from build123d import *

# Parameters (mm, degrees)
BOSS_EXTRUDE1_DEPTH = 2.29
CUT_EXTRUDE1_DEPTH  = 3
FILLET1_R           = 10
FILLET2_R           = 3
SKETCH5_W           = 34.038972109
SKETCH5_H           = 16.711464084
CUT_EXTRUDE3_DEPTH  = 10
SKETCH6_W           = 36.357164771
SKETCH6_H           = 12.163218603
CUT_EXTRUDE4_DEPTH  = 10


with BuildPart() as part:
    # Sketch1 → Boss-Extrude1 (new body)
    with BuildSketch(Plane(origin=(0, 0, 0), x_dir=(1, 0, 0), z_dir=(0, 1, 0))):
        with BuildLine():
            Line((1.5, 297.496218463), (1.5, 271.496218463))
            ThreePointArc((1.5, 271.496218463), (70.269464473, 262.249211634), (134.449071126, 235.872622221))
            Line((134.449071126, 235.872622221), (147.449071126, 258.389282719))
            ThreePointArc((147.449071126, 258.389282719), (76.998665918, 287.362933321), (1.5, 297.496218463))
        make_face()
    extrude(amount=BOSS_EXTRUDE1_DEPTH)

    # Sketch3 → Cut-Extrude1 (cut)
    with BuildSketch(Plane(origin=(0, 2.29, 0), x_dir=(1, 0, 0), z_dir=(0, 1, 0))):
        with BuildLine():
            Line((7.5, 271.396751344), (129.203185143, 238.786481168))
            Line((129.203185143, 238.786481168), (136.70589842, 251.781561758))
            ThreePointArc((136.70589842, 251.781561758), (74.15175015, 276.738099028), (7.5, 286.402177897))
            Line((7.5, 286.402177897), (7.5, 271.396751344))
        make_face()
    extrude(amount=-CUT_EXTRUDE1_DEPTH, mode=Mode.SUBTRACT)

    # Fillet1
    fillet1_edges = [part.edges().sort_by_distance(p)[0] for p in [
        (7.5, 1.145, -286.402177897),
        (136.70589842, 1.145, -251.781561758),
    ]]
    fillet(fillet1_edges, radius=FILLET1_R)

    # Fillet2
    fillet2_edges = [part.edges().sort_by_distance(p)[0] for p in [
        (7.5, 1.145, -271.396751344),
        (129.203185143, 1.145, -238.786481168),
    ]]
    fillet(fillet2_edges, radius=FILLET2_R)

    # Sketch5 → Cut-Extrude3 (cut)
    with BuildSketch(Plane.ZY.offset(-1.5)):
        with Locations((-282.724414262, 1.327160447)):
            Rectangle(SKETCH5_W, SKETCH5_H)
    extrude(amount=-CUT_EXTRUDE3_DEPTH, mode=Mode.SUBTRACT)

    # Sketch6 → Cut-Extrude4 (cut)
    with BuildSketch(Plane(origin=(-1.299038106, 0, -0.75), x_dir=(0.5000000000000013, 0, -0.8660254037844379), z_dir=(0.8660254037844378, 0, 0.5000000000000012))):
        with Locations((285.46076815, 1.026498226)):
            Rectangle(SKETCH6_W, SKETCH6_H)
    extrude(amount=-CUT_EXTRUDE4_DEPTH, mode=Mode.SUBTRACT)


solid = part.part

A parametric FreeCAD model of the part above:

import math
import FreeCAD as App
import Part
import Sketcher

V = App.Vector
Q = App.Units.Quantity


def edges_at(feature, points):
    """Names of the edges that pass closest to the given points."""
    edges = feature.Shape.Edges
    near = lambda p: min(range(len(edges)), key=lambda i: edges[i].distToShape(Part.Vertex(*p))[0])
    return sorted({f"Edge{near(p) + 1}" for p in points})


def add_polygon(sketch, points):
    """Adds a closed chain of lines whose ends are joined by coincident constraints."""
    first, n = sketch.GeometryCount, len(points)
    for a, b in zip(points, points[1:] + points[:1]):
        sketch.addGeometry(Part.LineSegment(App.Vector(*a, 0), App.Vector(*b, 0)), False)
    for i in range(n):
        sketch.addConstraint(Sketcher.Constraint("Coincident", first + i, 2, first + (i + 1) % n, 1))

doc = App.newDocument("Part")
body = doc.addObject("PartDesign::Body", "Body")

sketch1 = body.newObject("Sketcher::SketchObject", "Sketch")
sketch1.AttachmentSupport = (doc.getObject("XZ_Plane"), [""])
sketch1.MapMode = "FlatFace"
sketch1.addGeometry([
    Part.LineSegment(V(2, -297, 0), V(2, -271, 0)),
    Part.ArcOfCircle(Part.Circle(V(0, 0, 0), V(0, 0, 1), 272), math.radians(-90), math.radians(-60)),
    Part.LineSegment(V(134, -236, 0), V(147, -258, 0)),
    Part.ArcOfCircle(Part.Circle(V(0, 0, 0), V(0, 0, 1), 297), math.radians(-90), math.radians(-60)),
], False)
sketch1.addConstraint([
    Sketcher.Constraint("Coincident", 0, 2, 1, 1),
    Sketcher.Constraint("Coincident", 1, 2, 2, 1),
    Sketcher.Constraint("Coincident", 2, 2, 3, 2),
    Sketcher.Constraint("Coincident", 3, 1, 0, 1),
    Sketcher.Constraint("Vertical", 0),
    Sketcher.Constraint("Coincident", 1, 3, -1, 1),
    Sketcher.Constraint("Coincident", 3, 3, -1, 1),
    Sketcher.Constraint("Radius", 3, 297.5),
    Sketcher.Constraint("DistanceY", 0, 1, 0, 2, 26.0),
    Sketcher.Constraint("Angle", 2, Q("-60 deg")),
    Sketcher.Constraint("DistanceX", -1, 1, 0, 2, 1.5),
    Sketcher.Constraint("DistanceX", -1, 1, 1, 2, 134.449071),
])
pad1 = body.newObject("PartDesign::Pad", "Pad")
pad1.Profile = sketch1
pad1.Length = 2.29
pad1.Reversed = True

sketch2 = body.newObject("Sketcher::SketchObject", "Sketch001")
sketch2.AttachmentSupport = (doc.getObject("XZ_Plane"), [""])
sketch2.MapMode = "FlatFace"
sketch2.AttachmentOffset = App.Placement(V(0, 0, -2.29), App.Rotation())
sketch2.addGeometry([
    Part.LineSegment(V(8, -271, 0), V(129, -239, 0)),
    Part.LineSegment(V(129, -239, 0), V(137, -252, 0)),
    Part.ArcOfCircle(Part.Circle(V(0, 0, 0), V(0, 0, 1), 287), math.radians(-88), math.radians(-62)),
    Part.LineSegment(V(8, -286, 0), V(8, -271, 0)),
], False)
sketch2.addConstraint([
    Sketcher.Constraint("Coincident", 0, 2, 1, 1),
    Sketcher.Constraint("Coincident", 1, 2, 2, 2),
    Sketcher.Constraint("Coincident", 2, 1, 3, 1),
    Sketcher.Constraint("Coincident", 3, 2, 0, 1),
    Sketcher.Constraint("Vertical", 3),
    Sketcher.Constraint("Coincident", 2, 3, -1, 1),
    Sketcher.Constraint("Angle", 0, Q("15 deg")),
    Sketcher.Constraint("Angle", 1, Q("-60 deg")),
    Sketcher.Constraint("DistanceX", -1, 1, 3, 2, 7.5),
    Sketcher.Constraint("Radius", 2, 286.500362),
    Sketcher.Constraint("DistanceX", -1, 1, 1, 2, 136.705898),
    Sketcher.Constraint("Distance", 0, 125.996409),
])
pocket1 = body.newObject("PartDesign::Pocket", "Pocket")
pocket1.Profile = sketch2
pocket1.Length = 3
pocket1.Reversed = True
doc.recompute()

fillet = body.newObject("PartDesign::Fillet", "Fillet")
fillet.Base = (pocket1, edges_at(pocket1, [(7.5, 1.145, -286.402), (136.706, 1.145, -251.782)]))
fillet.Radius = 10
doc.recompute()

fillet2 = body.newObject("PartDesign::Fillet", "Fillet001")
fillet2.Base = (fillet, edges_at(fillet, [(7.5, 1.145, -271.397), (129.203, 1.145, -238.786)]))
fillet2.Radius = 3

sketch3 = body.newObject("Sketcher::SketchObject", "Sketch002")
sketch3.AttachmentSupport = (doc.getObject("YZ_Plane"), [""])
sketch3.MapMode = "FlatFace"
sketch3.AttachmentOffset = App.Placement(V(0, 0, 1.5), App.Rotation())
add_polygon(sketch3, [(10, -300), (-7, -300), (-7, -266), (10, -266)])
sketch3.addConstraint([
    Sketcher.Constraint("Horizontal", 0),
    Sketcher.Constraint("Vertical", 1),
    Sketcher.Constraint("Horizontal", 2),
    Sketcher.Constraint("Vertical", 3),
    Sketcher.Constraint("DistanceY", 0, 2, -1, 1, 299.7439),
    Sketcher.Constraint("DistanceX", 0, 2, 0, 1, 16.711464),
    Sketcher.Constraint("DistanceY", 1, 1, 1, 2, 34.038972),
    Sketcher.Constraint("DistanceX", 0, 2, -1, 1, 7.028572),
])
pocket2 = body.newObject("PartDesign::Pocket", "Pocket001")
pocket2.Profile = sketch3
pocket2.Length = 10
pocket2.Reversed = True

sketch4 = body.newObject("Sketcher::SketchObject", "Sketch003")
sketch4.Placement = App.Placement(V(-1.299038, 0, -0.75), App.Rotation(V(0.5, 0, -0.866025404), V(0, 1, 0), V(0.866025404, 0, 0.5), "ZXY"))
add_polygon(sketch4, [(267, 7), (267, -5), (304, -5), (304, 7)])
sketch4.addConstraint([
    Sketcher.Constraint("Vertical", 0),
    Sketcher.Constraint("Horizontal", 1),
    Sketcher.Constraint("Vertical", 2),
    Sketcher.Constraint("Horizontal", 3),
    Sketcher.Constraint("DistanceY", 0, 2, 0, 1, 12.163219),
    Sketcher.Constraint("DistanceX", 1, 1, 1, 2, 36.357165),
    Sketcher.Constraint("DistanceY", 0, 2, -1, 1, 5.055111),
    Sketcher.Constraint("DistanceX", -1, 1, 1, 2, 303.639351),
])
pocket3 = body.newObject("PartDesign::Pocket", "Pocket002")
pocket3.Profile = sketch4
pocket3.Length = 10

doc.recompute()
